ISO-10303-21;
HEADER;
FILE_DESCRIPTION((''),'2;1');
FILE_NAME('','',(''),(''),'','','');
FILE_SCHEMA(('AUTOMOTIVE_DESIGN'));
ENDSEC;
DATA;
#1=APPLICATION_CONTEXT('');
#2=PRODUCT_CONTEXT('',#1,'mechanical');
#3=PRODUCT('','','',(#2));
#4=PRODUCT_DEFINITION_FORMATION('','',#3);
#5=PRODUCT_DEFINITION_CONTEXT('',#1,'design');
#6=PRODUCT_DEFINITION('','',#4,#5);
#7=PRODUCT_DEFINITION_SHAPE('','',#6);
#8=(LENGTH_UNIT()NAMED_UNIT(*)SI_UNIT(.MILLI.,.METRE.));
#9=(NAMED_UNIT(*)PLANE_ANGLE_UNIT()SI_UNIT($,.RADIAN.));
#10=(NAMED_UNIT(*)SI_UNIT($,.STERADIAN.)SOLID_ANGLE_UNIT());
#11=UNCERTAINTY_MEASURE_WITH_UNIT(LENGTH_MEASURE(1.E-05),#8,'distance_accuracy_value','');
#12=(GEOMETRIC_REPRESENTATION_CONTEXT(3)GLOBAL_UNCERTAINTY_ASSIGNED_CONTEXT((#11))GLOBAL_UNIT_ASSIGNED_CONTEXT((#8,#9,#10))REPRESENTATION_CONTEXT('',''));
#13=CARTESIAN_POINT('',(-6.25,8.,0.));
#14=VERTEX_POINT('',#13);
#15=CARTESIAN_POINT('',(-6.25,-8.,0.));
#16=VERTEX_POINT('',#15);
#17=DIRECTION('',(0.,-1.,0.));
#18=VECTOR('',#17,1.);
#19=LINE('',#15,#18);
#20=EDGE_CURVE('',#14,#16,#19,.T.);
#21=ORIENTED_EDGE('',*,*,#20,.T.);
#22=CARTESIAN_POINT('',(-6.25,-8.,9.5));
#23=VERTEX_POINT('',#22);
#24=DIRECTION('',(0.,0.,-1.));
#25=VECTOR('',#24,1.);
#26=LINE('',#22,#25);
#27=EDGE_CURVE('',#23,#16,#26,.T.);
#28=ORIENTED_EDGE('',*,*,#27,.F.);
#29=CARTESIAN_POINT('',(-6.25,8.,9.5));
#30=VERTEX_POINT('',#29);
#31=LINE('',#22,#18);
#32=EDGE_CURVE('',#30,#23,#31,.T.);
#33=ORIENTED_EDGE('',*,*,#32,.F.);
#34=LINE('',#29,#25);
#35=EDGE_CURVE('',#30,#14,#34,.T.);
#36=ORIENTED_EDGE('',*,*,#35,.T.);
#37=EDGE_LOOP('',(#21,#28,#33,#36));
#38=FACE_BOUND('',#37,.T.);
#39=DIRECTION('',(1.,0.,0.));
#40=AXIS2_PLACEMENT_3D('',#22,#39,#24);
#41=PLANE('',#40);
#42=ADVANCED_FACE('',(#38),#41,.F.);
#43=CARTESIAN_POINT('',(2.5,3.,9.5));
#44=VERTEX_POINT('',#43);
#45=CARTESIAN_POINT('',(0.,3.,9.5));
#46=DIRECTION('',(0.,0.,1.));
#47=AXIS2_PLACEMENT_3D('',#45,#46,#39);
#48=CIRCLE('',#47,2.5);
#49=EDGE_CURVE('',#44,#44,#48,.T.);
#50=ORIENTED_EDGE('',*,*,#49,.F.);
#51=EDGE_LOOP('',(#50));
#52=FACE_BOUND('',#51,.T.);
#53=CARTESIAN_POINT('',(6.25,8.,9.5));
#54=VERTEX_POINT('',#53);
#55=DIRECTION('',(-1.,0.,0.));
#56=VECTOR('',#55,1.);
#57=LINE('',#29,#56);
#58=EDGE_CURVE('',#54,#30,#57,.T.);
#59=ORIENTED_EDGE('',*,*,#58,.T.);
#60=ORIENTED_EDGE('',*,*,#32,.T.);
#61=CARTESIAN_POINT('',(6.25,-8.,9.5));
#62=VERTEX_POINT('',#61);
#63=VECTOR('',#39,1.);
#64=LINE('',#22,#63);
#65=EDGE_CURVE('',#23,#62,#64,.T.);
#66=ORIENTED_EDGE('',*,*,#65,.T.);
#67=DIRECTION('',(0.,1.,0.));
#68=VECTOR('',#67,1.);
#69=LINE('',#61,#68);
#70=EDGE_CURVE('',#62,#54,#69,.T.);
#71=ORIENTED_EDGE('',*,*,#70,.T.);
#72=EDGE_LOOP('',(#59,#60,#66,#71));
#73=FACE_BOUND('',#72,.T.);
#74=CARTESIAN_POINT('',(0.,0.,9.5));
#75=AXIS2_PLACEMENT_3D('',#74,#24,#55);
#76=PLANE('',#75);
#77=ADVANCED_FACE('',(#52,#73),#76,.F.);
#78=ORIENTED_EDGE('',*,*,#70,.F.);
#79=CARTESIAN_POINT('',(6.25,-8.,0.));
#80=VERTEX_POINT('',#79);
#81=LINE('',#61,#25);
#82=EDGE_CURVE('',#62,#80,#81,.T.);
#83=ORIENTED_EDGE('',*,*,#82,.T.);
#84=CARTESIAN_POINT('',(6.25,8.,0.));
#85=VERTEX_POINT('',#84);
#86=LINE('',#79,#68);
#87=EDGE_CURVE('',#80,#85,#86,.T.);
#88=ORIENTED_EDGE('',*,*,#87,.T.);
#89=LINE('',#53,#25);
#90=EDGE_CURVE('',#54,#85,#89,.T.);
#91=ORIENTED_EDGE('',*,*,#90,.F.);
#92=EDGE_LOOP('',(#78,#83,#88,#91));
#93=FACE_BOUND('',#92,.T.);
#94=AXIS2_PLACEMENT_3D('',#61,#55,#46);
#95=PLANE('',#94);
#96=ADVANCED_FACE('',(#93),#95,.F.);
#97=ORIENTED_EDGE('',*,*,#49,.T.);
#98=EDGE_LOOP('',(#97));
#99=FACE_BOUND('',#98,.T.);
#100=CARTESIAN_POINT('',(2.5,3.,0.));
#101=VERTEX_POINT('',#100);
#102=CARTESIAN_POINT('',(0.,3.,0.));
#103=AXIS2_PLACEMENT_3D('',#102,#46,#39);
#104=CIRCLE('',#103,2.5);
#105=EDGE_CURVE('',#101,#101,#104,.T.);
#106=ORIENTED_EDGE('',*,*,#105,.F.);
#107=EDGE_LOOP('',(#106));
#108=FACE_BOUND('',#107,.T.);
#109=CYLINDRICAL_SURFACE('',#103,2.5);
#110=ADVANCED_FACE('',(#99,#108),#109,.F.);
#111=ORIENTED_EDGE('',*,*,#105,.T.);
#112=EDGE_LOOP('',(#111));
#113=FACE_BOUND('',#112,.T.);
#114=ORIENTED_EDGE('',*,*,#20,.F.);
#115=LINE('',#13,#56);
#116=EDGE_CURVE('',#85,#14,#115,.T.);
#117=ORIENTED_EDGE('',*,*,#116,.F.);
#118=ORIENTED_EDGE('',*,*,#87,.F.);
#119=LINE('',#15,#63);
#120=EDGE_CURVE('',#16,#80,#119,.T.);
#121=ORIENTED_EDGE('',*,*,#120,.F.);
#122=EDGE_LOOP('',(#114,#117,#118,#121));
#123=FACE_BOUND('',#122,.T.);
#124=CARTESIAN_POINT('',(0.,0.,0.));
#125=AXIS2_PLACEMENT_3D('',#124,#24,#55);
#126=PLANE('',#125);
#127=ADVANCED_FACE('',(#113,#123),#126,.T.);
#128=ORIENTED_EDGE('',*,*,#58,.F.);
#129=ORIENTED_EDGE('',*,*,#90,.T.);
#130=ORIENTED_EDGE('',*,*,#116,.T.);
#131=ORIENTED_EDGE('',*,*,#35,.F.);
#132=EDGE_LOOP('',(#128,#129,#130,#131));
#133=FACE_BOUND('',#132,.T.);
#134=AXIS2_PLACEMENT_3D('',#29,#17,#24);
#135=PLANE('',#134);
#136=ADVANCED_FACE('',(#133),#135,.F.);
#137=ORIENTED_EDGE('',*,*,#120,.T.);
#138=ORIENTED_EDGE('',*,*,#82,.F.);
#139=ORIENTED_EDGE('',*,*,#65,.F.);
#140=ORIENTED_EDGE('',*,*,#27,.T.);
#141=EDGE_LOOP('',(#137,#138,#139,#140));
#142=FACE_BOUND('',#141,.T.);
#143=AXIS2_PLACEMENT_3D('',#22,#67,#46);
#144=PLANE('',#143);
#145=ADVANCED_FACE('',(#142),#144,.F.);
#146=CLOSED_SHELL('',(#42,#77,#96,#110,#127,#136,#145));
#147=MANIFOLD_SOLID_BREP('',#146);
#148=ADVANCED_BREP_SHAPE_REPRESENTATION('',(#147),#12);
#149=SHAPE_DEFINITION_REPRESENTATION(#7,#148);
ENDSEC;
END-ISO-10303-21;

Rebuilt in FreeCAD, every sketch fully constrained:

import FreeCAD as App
import Part
import Sketcher

V = App.Vector


def add_polygon(sketch, points):
    """Adds a closed chain of lines whose ends are joined by coincident constraints."""
    first, n = sketch.GeometryCount, len(points)
    for a, b in zip(points, points[1:] + points[:1]):
        sketch.addGeometry(Part.LineSegment(App.Vector(*a, 0), App.Vector(*b, 0)), False)
    for i in range(n):
        sketch.addConstraint(Sketcher.Constraint("Coincident", first + i, 2, first + (i + 1) % n, 1))

doc = App.newDocument("Part")
body = doc.addObject("PartDesign::Body", "Body")

# Sketch on XY plane
sketch1 = doc.addObject("Sketcher::SketchObject", "Sketch")
body.addObject(sketch1)
sketch1.AttachmentSupport = (doc.XY_Plane, [""])
sketch1.MapMode = "FlatFace"
add_polygon(sketch1, [(-6.25, 8), (-6.25, -8), (6.25, -8), (6.25, 8)])  # lines 0-3
sketch1.addConstraint(Sketcher.Constraint("Vertical", 0))
sketch1.addConstraint(Sketcher.Constraint("Horizontal", 1))
sketch1.addConstraint(Sketcher.Constraint("Vertical", 2))
sketch1.addConstraint(Sketcher.Constraint("Horizontal", 3))
sketch1.addConstraint(Sketcher.Constraint("Symmetric", 0, 2, 2, 2, -1, 1))
sketch1.addConstraint(Sketcher.Constraint("DistanceY", 0, 2, 0, 1, 16.0))
sketch1.addConstraint(Sketcher.Constraint("DistanceX", 1, 1, 1, 2, 12.5))
pad1 = doc.addObject("PartDesign::Pad", "Pad")
body.addObject(pad1)
pad1.Profile = sketch1
pad1.Length = 9.5

# Sketch on XY plane
sketch2 = doc.addObject("Sketcher::SketchObject", "Sketch001")
body.addObject(sketch2)
sketch2.AttachmentSupport = (doc.XY_Plane, [""])
sketch2.MapMode = "FlatFace"
sketch2.AttachmentOffset = App.Placement(V(0, 0, 9.5), App.Rotation())
sketch2.addGeometry(Part.Circle(V(0, 3, 0), V(0, 0, 1), 2.5), False)
sketch2.addConstraint(Sketcher.Constraint("PointOnObject", 0, 3, -2))
sketch2.addConstraint(Sketcher.Constraint("Diameter", 0, 5.0))
sketch2.addConstraint(Sketcher.Constraint("DistanceY", -1, 1, 0, 3, 3.0))
pocket1 = doc.addObject("PartDesign::Pocket", "Pocket")
body.addObject(pocket1)
pocket1.Profile = sketch2
pocket1.Length = 9.5

doc.recompute()
